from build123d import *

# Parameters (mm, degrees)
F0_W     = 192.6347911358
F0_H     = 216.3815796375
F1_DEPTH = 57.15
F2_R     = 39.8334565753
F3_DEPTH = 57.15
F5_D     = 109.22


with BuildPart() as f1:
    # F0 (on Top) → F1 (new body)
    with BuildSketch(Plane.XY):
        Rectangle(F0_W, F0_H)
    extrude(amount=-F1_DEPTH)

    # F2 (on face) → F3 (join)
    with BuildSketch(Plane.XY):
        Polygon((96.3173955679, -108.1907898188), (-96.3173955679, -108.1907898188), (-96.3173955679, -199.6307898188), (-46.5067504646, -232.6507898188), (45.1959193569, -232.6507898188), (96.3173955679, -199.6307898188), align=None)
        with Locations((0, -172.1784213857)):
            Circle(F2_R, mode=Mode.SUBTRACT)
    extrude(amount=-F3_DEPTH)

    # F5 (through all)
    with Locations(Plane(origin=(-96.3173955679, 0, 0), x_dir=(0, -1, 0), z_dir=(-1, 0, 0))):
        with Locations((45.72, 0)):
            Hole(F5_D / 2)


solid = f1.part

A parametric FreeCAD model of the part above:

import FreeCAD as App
import Part
import Sketcher

V = App.Vector
Q = App.Units.Quantity


def add_polygon(sketch, points):
    """Adds a closed chain of lines whose ends are joined by coincident constraints."""
    first, n = sketch.GeometryCount, len(points)
    for a, b in zip(points, points[1:] + points[:1]):
        sketch.addGeometry(Part.LineSegment(App.Vector(*a, 0), App.Vector(*b, 0)), False)
    for i in range(n):
        sketch.addConstraint(Sketcher.Constraint("Coincident", first + i, 2, first + (i + 1) % n, 1))

doc = App.newDocument("Part")
body = doc.addObject("PartDesign::Body", "Body")

sketch1 = body.newObject("Sketcher::SketchObject", "Sketch")
sketch1.AttachmentSupport = (doc.getObject("XY_Plane"), [""])
sketch1.MapMode = "FlatFace"
add_polygon(sketch1, [(-96, 108), (-96, -108), (96, -108), (96, 108)])
sketch1.addConstraint([
    Sketcher.Constraint("Vertical", 0),
    Sketcher.Constraint("Horizontal", 1),
    Sketcher.Constraint("Vertical", 2),
    Sketcher.Constraint("Horizontal", 3),
    Sketcher.Constraint("Symmetric", 0, 2, 2, 2, -1, 1),
    Sketcher.Constraint("DistanceX", 1, 1, 1, 2, 192.634791),
    Sketcher.Constraint("DistanceY", 0, 2, 0, 1, 216.38158),
])
pad1 = body.newObject("PartDesign::Pad", "Pad")
pad1.Profile = sketch1
pad1.Length = Q("2.25 in")
pad1.Reversed = True

sketch2 = body.newObject("Sketcher::SketchObject", "Sketch001")
sketch2.AttachmentSupport = (doc.getObject("XY_Plane"), [""])
sketch2.MapMode = "FlatFace"
add_polygon(sketch2, [(96, -108), (-96, -108), (-96, -200), (-47, -233), (45, -233), (96, -200)])
sketch2.addGeometry(Part.Circle(V(0, -172, 0), V(0, 0, 1), 40), False)
sketch2.addConstraint([
    Sketcher.Constraint("Horizontal", 0),
    Sketcher.Constraint("Vertical", 1),
    Sketcher.Constraint("Horizontal", 3),
    Sketcher.Constraint("Vertical", 5),
    Sketcher.Constraint("Symmetric", 1, 2, 4, 2, -2),
    Sketcher.Constraint("PointOnObject", 6, 3, -2),
    Sketcher.Constraint("DistanceY", 1, 2, 1, 1, Q("3.6 in")),
    Sketcher.Constraint("DistanceY", 2, 2, 1, 2, Q("1.3 in")),
    Sketcher.Constraint("Diameter", 6, 79.666913),
    Sketcher.Constraint("DistanceX", 0, 2, 0, 1, 192.634791),
    Sketcher.Constraint("DistanceX", 3, 1, 3, 2, 91.70267),
    Sketcher.Constraint("DistanceY", 6, 3, -1, 1, 172.178421),
    Sketcher.Constraint("DistanceY", 0, 2, -1, 1, 108.19079),
    Sketcher.Constraint("DistanceX", 2, 2, -1, 1, 46.50675),
])
pad2 = body.newObject("PartDesign::Pad", "Pad001")
pad2.Profile = sketch2
pad2.Length = Q("2.25 in")
pad2.Reversed = True

sketch3 = body.newObject("Sketcher::SketchObject", "Sketch002")
sketch3.AttachmentSupport = (doc.getObject("YZ_Plane"), [""])
sketch3.MapMode = "FlatFace"
sketch3.AttachmentOffset = App.Placement(V(0, 0, -96.317396), App.Rotation())
sketch3.addGeometry(Part.Circle(V(-46, 0, 0), V(0, 0, 1), 55), False)
sketch3.addConstraint([
    Sketcher.Constraint("PointOnObject", 0, 3, -1),
    Sketcher.Constraint("Diameter", 0, Q("4.3 in")),
    Sketcher.Constraint("DistanceX", 0, 3, -1, 1, Q("1.8 in")),
])
doc.recompute()
hole = body.newObject("PartDesign::Hole", "Hole")
hole.Profile = sketch3
hole.ThreadType = "None"
hole.Diameter = Q("4.3 in")
hole.DepthType = "ThroughAll"
hole.Reversed = True

doc.recompute()
